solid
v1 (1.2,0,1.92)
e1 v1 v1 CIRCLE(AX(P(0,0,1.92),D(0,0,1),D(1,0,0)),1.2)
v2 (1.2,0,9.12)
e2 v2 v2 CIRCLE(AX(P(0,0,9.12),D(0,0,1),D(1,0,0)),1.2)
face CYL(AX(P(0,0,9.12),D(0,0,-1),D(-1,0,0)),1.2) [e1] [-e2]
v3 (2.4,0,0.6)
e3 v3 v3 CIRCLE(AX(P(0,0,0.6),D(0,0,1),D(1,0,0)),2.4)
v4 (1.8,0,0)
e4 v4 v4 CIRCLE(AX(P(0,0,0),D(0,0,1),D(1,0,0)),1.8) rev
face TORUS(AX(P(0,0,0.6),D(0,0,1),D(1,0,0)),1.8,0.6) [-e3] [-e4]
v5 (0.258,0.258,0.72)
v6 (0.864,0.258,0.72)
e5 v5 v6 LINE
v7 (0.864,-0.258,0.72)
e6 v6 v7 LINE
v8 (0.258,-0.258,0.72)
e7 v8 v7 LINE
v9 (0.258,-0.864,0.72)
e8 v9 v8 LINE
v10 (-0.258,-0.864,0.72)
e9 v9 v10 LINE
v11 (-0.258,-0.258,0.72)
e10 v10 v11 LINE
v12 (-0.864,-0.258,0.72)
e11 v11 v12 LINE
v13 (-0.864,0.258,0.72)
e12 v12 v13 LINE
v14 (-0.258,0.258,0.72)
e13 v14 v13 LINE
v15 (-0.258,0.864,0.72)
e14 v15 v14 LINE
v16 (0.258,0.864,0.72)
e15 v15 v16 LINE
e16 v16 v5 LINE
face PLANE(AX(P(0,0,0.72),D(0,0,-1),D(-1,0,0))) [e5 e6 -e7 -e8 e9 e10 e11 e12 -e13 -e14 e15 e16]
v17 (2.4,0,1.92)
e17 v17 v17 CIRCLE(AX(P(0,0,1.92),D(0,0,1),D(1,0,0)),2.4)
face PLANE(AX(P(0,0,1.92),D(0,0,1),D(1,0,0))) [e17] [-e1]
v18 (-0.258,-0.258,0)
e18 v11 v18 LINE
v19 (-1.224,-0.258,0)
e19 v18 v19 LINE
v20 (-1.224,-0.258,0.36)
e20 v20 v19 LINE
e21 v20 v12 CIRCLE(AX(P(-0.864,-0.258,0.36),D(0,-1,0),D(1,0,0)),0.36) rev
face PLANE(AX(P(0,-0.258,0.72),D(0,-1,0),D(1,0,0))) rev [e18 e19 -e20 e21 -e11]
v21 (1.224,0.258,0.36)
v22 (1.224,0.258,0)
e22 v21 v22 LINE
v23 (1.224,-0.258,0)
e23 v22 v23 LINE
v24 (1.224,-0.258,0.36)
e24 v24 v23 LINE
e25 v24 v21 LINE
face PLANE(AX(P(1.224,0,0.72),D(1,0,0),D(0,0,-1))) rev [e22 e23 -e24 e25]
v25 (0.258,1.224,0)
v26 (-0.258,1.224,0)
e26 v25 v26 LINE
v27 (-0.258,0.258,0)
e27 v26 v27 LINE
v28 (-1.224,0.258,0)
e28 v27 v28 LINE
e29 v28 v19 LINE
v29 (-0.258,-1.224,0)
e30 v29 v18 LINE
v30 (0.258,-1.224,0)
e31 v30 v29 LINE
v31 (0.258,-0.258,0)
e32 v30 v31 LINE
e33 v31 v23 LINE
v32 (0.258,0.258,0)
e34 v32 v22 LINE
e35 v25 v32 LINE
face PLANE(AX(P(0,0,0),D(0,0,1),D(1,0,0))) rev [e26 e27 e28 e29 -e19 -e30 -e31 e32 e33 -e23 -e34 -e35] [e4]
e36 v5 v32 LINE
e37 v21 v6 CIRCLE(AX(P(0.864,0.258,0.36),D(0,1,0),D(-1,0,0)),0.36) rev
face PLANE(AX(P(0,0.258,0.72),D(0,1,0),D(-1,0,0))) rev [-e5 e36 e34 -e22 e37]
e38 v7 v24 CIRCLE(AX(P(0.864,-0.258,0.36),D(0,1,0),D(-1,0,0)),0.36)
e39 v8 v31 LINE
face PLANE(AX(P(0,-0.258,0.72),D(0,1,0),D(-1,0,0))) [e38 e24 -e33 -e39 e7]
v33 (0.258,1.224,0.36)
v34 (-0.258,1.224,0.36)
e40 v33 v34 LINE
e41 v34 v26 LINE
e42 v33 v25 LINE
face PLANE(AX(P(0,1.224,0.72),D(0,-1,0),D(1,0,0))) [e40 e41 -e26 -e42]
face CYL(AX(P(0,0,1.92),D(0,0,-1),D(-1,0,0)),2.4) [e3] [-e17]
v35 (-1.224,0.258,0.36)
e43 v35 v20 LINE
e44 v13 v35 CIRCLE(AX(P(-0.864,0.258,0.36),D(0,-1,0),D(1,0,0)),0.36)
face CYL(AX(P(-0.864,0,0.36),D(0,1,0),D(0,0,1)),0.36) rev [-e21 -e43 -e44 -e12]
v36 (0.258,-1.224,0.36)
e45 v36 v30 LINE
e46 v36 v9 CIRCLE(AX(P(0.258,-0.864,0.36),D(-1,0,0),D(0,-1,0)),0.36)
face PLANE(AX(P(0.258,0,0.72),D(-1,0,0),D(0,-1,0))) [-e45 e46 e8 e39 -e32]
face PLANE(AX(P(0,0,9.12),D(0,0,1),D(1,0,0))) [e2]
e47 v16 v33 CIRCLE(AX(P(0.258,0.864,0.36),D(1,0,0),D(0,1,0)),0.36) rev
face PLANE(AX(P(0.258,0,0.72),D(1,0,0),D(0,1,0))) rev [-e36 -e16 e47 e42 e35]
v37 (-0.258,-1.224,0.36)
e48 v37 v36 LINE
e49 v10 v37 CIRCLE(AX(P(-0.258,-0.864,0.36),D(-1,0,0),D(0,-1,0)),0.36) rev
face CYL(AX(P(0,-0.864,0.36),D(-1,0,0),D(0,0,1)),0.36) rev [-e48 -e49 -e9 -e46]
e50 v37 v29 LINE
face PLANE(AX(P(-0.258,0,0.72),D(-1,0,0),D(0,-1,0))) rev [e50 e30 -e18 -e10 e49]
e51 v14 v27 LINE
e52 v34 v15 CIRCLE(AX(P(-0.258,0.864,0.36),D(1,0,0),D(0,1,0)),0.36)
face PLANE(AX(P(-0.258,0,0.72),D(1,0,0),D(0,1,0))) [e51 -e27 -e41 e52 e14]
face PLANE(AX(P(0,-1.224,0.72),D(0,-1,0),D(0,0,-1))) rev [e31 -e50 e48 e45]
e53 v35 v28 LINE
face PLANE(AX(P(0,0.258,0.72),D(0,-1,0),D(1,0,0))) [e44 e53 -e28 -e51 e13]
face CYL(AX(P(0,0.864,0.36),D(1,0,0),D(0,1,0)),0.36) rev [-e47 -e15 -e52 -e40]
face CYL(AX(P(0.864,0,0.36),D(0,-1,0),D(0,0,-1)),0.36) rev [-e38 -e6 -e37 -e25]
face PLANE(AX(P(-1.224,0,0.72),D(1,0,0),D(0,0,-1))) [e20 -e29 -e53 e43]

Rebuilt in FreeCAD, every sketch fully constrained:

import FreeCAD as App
import Part
import Sketcher

V = App.Vector


def edges_at(feature, points):
    """Names of the edges that pass closest to the given points."""
    edges = feature.Shape.Edges
    near = lambda p: min(range(len(edges)), key=lambda i: edges[i].distToShape(Part.Vertex(*p))[0])
    return sorted({f"Edge{near(p) + 1}" for p in points})

doc = App.newDocument("Part")
body = doc.addObject("PartDesign::Body", "Body")

sketch1 = doc.addObject("Sketcher::SketchObject", "Sketch")
body.addObject(sketch1)
sketch1.AttachmentSupport = (doc.XY_Plane, [""])
sketch1.MapMode = "FlatFace"
sketch1.addGeometry(Part.Circle(V(0, 0, 0), V(0, 0, 1), 2.4), False)
sketch1.addConstraint(Sketcher.Constraint("Coincident", 0, 3, -1, 1))
sketch1.addConstraint(Sketcher.Constraint("Diameter", 0, 4.8))
pad1 = doc.addObject("PartDesign::Pad", "Pad")
body.addObject(pad1)
pad1.Profile = sketch1
pad1.Length = 1.92

sketch2 = doc.addObject("Sketcher::SketchObject", "Sketch001")
body.addObject(sketch2)
sketch2.AttachmentSupport = (doc.XY_Plane, [""])
sketch2.MapMode = "FlatFace"
sketch2.addGeometry(Part.LineSegment(V(-1.2, 0.3, 0), V(-0.3, 0.3, 0)), False)
sketch2.addGeometry(Part.LineSegment(V(-0.3, 0.3, 0), V(-0.3, 1.2, 0)), False)
sketch2.addGeometry(Part.LineSegment(V(-0.3, 1.2, 0), V(0.3, 1.2, 0)), False)
sketch2.addGeometry(Part.LineSegment(V(0.3, 1.2, 0), V(0.3, 0.3, 0)), False)
sketch2.addGeometry(Part.LineSegment(V(0.3, 0.3, 0), V(1.2, 0.3, 0)), False)
sketch2.addGeometry(Part.LineSegment(V(1.2, 0.3, 0), V(1.2, -0.3, 0)), False)
sketch2.addGeometry(Part.LineSegment(V(1.2, -0.3, 0), V(0.3, -0.3, 0)), False)
sketch2.addGeometry(Part.LineSegment(V(0.3, -0.3, 0), V(0.3, -1.2, 0)), False)
sketch2.addGeometry(Part.LineSegment(V(0.3, -1.2, 0), V(-0.3, -1.2, 0)), False)
sketch2.addGeometry(Part.LineSegment(V(-0.3, -1.2, 0), V(-0.3, -0.3, 0)), False)
sketch2.addGeometry(Part.LineSegment(V(-0.3, -0.3, 0), V(-1.2, -0.3, 0)), False)
sketch2.addGeometry(Part.LineSegment(V(-1.2, -0.3, 0), V(-1.2, 0.3, 0)), False)
sketch2.addConstraint(Sketcher.Constraint("Coincident", 0, 2, 1, 1))
sketch2.addConstraint(Sketcher.Constraint("Coincident", 1, 2, 2, 1))
sketch2.addConstraint(Sketcher.Constraint("Coincident", 2, 2, 3, 1))
sketch2.addConstraint(Sketcher.Constraint("Coincident", 3, 2, 4, 1))
sketch2.addConstraint(Sketcher.Constraint("Coincident", 4, 2, 5, 1))
sketch2.addConstraint(Sketcher.Constraint("Coincident", 5, 2, 6, 1))
sketch2.addConstraint(Sketcher.Constraint("Coincident", 6, 2, 7, 1))
sketch2.addConstraint(Sketcher.Constraint("Coincident", 7, 2, 8, 1))
sketch2.addConstraint(Sketcher.Constraint("Coincident", 8, 2, 9, 1))
sketch2.addConstraint(Sketcher.Constraint("Coincident", 9, 2, 10, 1))
sketch2.addConstraint(Sketcher.Constraint("Coincident", 10, 2, 11, 1))
sketch2.addConstraint(Sketcher.Constraint("Coincident", 11, 2, 0, 1))
sketch2.addConstraint(Sketcher.Constraint("Horizontal", 0))
sketch2.addConstraint(Sketcher.Constraint("Vertical", 1))
sketch2.addConstraint(Sketcher.Constraint("Horizontal", 2))
sketch2.addConstraint(Sketcher.Constraint("Vertical", 3))
sketch2.addConstraint(Sketcher.Constraint("Horizontal", 4))
sketch2.addConstraint(Sketcher.Constraint("Vertical", 5))
sketch2.addConstraint(Sketcher.Constraint("Horizontal", 6))
sketch2.addConstraint(Sketcher.Constraint("Vertical", 7))
sketch2.addConstraint(Sketcher.Constraint("Horizontal", 8))
sketch2.addConstraint(Sketcher.Constraint("Vertical", 9))
sketch2.addConstraint(Sketcher.Constraint("Horizontal", 10))
sketch2.addConstraint(Sketcher.Constraint("Vertical", 11))
sketch2.addConstraint(Sketcher.Constraint("Symmetric", 0, 2, 6, 2, -1, 1))
sketch2.addConstraint(Sketcher.Constraint("Symmetric", 2, 2, 8, 2, -1, 1))
sketch2.addConstraint(Sketcher.Constraint("Symmetric", 4, 2, 10, 2, -1, 1))
sketch2.addConstraint(Sketcher.Constraint("Symmetric", 0, 2, 3, 2, -2))
sketch2.addConstraint(Sketcher.Constraint("Equal", 10, 1))
sketch2.addConstraint(Sketcher.Constraint("Equal", 8, 5))
sketch2.addConstraint(Sketcher.Constraint("DistanceX", 0, 1, 0, 2, 0.966))
sketch2.addConstraint(Sketcher.Constraint("DistanceX", 2, 1, 2, 2, 0.516))
pocket1 = doc.addObject("PartDesign::Pocket", "Pocket")
body.addObject(pocket1)
pocket1.Profile = sketch2
pocket1.Length = 0.72
pocket1.Reversed = True
doc.recompute()

fillet = doc.addObject("PartDesign::Fillet", "Fillet")
body.addObject(fillet)
fillet.Base = (pocket1, edges_at(pocket1, [
    (0, -1.224, 0.72),
    (1.224, 0, 0.72),
    (-1.224, 0, 0.72),
    (0, 1.224, 0.72),
]))
fillet.Radius = 0.36

sketch3 = doc.addObject("Sketcher::SketchObject", "Sketch002")
body.addObject(sketch3)
sketch3.AttachmentSupport = (doc.XY_Plane, [""])
sketch3.MapMode = "FlatFace"
sketch3.AttachmentOffset = App.Placement(V(0, 0, 1.92), App.Rotation())
sketch3.addGeometry(Part.Circle(V(0, 0, 0), V(0, 0, 1), 1.2), False)
sketch3.addConstraint(Sketcher.Constraint("Coincident", 0, 3, -1, 1))
sketch3.addConstraint(Sketcher.Constraint("Diameter", 0, 2.4))
pad2 = doc.addObject("PartDesign::Pad", "Pad001")
body.addObject(pad2)
pad2.Profile = sketch3
pad2.Length = 7.2
doc.recompute()

fillet2 = doc.addObject("PartDesign::Fillet", "Fillet001")
body.addObject(fillet2)
fillet2.Base = (pad2, edges_at(pad2, [(-2.4, 0, 0)]))
fillet2.Radius = 0.6

doc.recompute()
